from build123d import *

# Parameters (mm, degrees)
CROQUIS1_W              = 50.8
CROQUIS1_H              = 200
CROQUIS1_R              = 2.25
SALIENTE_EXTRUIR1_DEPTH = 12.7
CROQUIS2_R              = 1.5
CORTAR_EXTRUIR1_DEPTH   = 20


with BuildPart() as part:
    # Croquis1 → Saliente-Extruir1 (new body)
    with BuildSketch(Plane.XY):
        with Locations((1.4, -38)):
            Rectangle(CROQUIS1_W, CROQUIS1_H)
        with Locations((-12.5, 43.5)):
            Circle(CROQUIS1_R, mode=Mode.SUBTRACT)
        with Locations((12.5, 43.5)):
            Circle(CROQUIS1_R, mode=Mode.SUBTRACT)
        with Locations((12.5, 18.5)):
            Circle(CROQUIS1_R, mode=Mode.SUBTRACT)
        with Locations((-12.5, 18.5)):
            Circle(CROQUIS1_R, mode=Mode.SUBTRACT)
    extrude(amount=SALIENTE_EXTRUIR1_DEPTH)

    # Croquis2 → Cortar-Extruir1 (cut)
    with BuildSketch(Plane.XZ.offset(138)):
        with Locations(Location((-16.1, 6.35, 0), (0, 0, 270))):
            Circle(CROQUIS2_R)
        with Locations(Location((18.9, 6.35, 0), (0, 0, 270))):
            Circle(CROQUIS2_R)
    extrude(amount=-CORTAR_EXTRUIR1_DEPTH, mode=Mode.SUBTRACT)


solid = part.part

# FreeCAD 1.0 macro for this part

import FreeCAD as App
import Part
import Sketcher

V = App.Vector


def add_polygon(sketch, points):
    """Adds a closed chain of lines whose ends are joined by coincident constraints."""
    first, n = sketch.GeometryCount, len(points)
    for a, b in zip(points, points[1:] + points[:1]):
        sketch.addGeometry(Part.LineSegment(App.Vector(*a, 0), App.Vector(*b, 0)), False)
    for i in range(n):
        sketch.addConstraint(Sketcher.Constraint("Coincident", first + i, 2, first + (i + 1) % n, 1))

doc = App.newDocument("Part")
body = doc.addObject("PartDesign::Body", "Body")

# Sketch on XY plane
sketch1 = doc.addObject("Sketcher::SketchObject", "Sketch")
body.addObject(sketch1)
sketch1.AttachmentSupport = (doc.XY_Plane, [""])
sketch1.MapMode = "FlatFace"
add_polygon(sketch1, [(-24, 62), (-24, -138), (26.8, -138), (26.8, 62)])  # lines 0-3
sketch1.addGeometry(Part.Circle(V(-12.5, 18.5, 0), V(0, 0, 1), 2.25), False)  # 4
sketch1.addGeometry(Part.Circle(V(12.5, 18.5, 0), V(0, 0, 1), 2.25), False)  # 5
sketch1.addGeometry(Part.Circle(V(-12.5, 43.5, 0), V(0, 0, 1), 2.25), False)  # 6
sketch1.addGeometry(Part.Circle(V(12.5, 43.5, 0), V(0, 0, 1), 2.25), False)  # 7
sketch1.addConstraint(Sketcher.Constraint("Vertical", 0))
sketch1.addConstraint(Sketcher.Constraint("Horizontal", 1))
sketch1.addConstraint(Sketcher.Constraint("Vertical", 2))
sketch1.addConstraint(Sketcher.Constraint("Horizontal", 3))
sketch1.addConstraint(Sketcher.Constraint("Equal", 4, 5))
sketch1.addConstraint(Sketcher.Constraint("Equal", 5, 6))
sketch1.addConstraint(Sketcher.Constraint("Equal", 6, 7))
sketch1.addConstraint(Sketcher.Constraint("Symmetric", 4, 3, 5, 3, -2))
sketch1.addConstraint(Sketcher.Constraint("Symmetric", 6, 3, 7, 3, -2))
sketch1.addConstraint(Sketcher.Constraint("Vertical", 4, 3, 6, 3))
sketch1.addConstraint(Sketcher.Constraint("Diameter", 4, 4.5))
sketch1.addConstraint(Sketcher.Constraint("DistanceY", 0, 2, 0, 1, 200.0))
sketch1.addConstraint(Sketcher.Constraint("DistanceX", 1, 1, 1, 2, 50.8))
sketch1.addConstraint(Sketcher.Constraint("DistanceX", 0, 2, -1, 1, 24.0))
sketch1.addConstraint(Sketcher.Constraint("DistanceY", 0, 2, -1, 1, 138.0))
sketch1.addConstraint(Sketcher.Constraint("DistanceX", 4, 3, 5, 3, 25.0))
sketch1.addConstraint(Sketcher.Constraint("DistanceY", 4, 3, 6, 3, 25.0))
sketch1.addConstraint(Sketcher.Constraint("DistanceY", -1, 1, 4, 3, 18.5))
pad1 = doc.addObject("PartDesign::Pad", "Pad")
body.addObject(pad1)
pad1.Profile = sketch1
pad1.Length = 12.7

# Sketch on XZ plane
sketch2 = doc.addObject("Sketcher::SketchObject", "Sketch001")
body.addObject(sketch2)
sketch2.AttachmentSupport = (doc.XZ_Plane, [""])
sketch2.MapMode = "FlatFace"
sketch2.AttachmentOffset = App.Placement(V(0, 0, 138), App.Rotation())
sketch2.addGeometry(Part.Circle(V(-16.1, 6.35, 0), V(0, 0, 1), 1.5), False)
sketch2.addGeometry(Part.Circle(V(18.9, 6.35, 0), V(0, 0, 1), 1.5), False)
sketch2.addConstraint(Sketcher.Constraint("Equal", 0, 1))
sketch2.addConstraint(Sketcher.Constraint("Horizontal", 0, 3, 1, 3))
sketch2.addConstraint(Sketcher.Constraint("Diameter", 0, 3.0))
sketch2.addConstraint(Sketcher.Constraint("DistanceX", 0, 3, 1, 3, 35.0))
sketch2.addConstraint(Sketcher.Constraint("DistanceX", 0, 3, -1, 1, 16.1))
sketch2.addConstraint(Sketcher.Constraint("DistanceY", -1, 1, 0, 3, 6.35))
pocket1 = doc.addObject("PartDesign::Pocket", "Pocket")
body.addObject(pocket1)
pocket1.Profile = sketch2
pocket1.Length = 20

doc.recompute()
